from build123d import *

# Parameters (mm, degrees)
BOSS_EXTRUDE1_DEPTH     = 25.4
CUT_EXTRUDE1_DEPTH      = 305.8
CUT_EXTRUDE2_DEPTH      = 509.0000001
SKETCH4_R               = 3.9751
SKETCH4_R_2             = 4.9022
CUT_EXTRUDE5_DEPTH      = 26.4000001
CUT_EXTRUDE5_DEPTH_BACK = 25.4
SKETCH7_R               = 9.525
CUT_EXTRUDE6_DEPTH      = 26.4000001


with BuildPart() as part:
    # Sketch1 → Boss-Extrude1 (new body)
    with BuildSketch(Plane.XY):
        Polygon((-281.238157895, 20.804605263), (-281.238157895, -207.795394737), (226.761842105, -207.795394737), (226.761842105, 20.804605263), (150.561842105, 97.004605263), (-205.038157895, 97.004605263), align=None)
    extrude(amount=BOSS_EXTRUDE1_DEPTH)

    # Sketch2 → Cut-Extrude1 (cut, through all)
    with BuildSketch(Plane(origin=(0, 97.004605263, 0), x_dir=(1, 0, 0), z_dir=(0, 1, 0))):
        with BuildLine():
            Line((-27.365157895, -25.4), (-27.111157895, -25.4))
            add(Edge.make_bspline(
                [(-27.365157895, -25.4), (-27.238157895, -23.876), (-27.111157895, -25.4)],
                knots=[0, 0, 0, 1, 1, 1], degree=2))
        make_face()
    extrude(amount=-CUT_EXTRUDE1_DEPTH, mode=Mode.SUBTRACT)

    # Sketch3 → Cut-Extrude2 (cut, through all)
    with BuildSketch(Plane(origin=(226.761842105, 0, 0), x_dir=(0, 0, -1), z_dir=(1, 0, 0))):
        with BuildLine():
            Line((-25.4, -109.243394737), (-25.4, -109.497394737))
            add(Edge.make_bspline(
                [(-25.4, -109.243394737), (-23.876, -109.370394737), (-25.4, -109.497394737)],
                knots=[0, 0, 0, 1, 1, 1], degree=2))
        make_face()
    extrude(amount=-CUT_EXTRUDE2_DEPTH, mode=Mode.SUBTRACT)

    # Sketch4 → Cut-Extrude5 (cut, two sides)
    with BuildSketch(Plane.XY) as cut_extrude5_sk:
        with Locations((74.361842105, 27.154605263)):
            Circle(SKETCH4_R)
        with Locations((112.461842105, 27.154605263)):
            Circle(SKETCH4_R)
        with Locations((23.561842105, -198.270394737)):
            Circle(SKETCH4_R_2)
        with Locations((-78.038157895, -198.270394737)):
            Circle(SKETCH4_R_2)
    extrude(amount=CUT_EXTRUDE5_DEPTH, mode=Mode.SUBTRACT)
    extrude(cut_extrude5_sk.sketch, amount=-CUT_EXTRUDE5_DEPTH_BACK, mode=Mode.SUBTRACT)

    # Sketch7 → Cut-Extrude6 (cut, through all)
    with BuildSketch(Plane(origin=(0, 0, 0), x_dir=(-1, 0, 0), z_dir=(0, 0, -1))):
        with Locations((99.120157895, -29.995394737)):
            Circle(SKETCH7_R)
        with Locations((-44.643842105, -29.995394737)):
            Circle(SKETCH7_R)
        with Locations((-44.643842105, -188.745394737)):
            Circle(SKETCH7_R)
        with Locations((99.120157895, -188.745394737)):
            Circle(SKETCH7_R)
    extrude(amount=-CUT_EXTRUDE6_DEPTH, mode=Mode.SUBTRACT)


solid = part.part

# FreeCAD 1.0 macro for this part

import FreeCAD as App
import Part
import Sketcher
from FreeCAD import Vector
Q = App.Units.Quantity

doc = App.newDocument("Part")
body = doc.addObject("PartDesign::Body", "Body")

sketch1 = doc.addObject("Sketcher::SketchObject", "Sketch")
body.addObject(sketch1)
sketch1.AttachmentSupport = (doc.XY_Plane, [""])
sketch1.MapMode = "FlatFace"
sketch1.addGeometry(Part.LineSegment(Vector(-281, 21, 0), Vector(-281, -208, 0)), False)
sketch1.addGeometry(Part.LineSegment(Vector(-281, -208, 0), Vector(227, -208, 0)), False)
sketch1.addGeometry(Part.LineSegment(Vector(227, -208, 0), Vector(227, 21, 0)), False)
sketch1.addGeometry(Part.LineSegment(Vector(227, 21, 0), Vector(151, 97, 0)), False)
sketch1.addGeometry(Part.LineSegment(Vector(151, 97, 0), Vector(-205, 97, 0)), False)
sketch1.addGeometry(Part.LineSegment(Vector(-205, 97, 0), Vector(-281, 21, 0)), False)
sketch1.addConstraint(Sketcher.Constraint("Coincident", 0, 2, 1, 1))
sketch1.addConstraint(Sketcher.Constraint("Coincident", 1, 2, 2, 1))
sketch1.addConstraint(Sketcher.Constraint("Coincident", 2, 2, 3, 1))
sketch1.addConstraint(Sketcher.Constraint("Coincident", 3, 2, 4, 1))
sketch1.addConstraint(Sketcher.Constraint("Coincident", 4, 2, 5, 1))
sketch1.addConstraint(Sketcher.Constraint("Coincident", 5, 2, 0, 1))
sketch1.addConstraint(Sketcher.Constraint("Vertical", 0))
sketch1.addConstraint(Sketcher.Constraint("Horizontal", 1))
sketch1.addConstraint(Sketcher.Constraint("Vertical", 2))
sketch1.addConstraint(Sketcher.Constraint("Horizontal", 4))
sketch1.addConstraint(Sketcher.Constraint("Perpendicular", 3, 5))
sketch1.addConstraint(Sketcher.Constraint("Horizontal", 2, 2, 5, 2))
sketch1.addConstraint(Sketcher.Constraint("Equal", 3, 5))
sketch1.addConstraint(Sketcher.Constraint("DistanceX", 1, 1, 1, 2, Q("20 in")))
sketch1.addConstraint(Sketcher.Constraint("DistanceX", 4, 2, 4, 1, Q("14 in")))
sketch1.addConstraint(Sketcher.Constraint("DistanceY", 0, 2, 0, 1, Q("9 in")))
sketch1.addConstraint(Sketcher.Constraint("DistanceX", 0, 2, -1, 1, 281.238158))
sketch1.addConstraint(Sketcher.Constraint("DistanceY", 0, 2, -1, 1, 207.795395))
pad1 = doc.addObject("PartDesign::Pad", "Pad")
body.addObject(pad1)
pad1.Profile = sketch1
pad1.Length = Q("1 in")

sketch2 = doc.addObject("Sketcher::SketchObject", "Sketch001")
body.addObject(sketch2)
sketch2.AttachmentSupport = (doc.XZ_Plane, [""])
sketch2.MapMode = "FlatFace"
sketch2.AttachmentOffset = App.Placement(Vector(0, 0, -97.004605), App.Rotation())
sketch2.addGeometry(Part.LineSegment(Vector(-27.365158, 25.4, 0), Vector(-27.111158, 25.4, 0)), False)
sketch2.addGeometry(Part.BSplineCurve([Vector(-27.365158, 25.4, 0), Vector(-27.238158, 23.876, 0), Vector(-27.111158, 25.4, 0)], [3, 3], [0, 1], False, 2, [1, 1, 1], False), False)
sketch2.addConstraint(Sketcher.Constraint("Block", 1))
sketch2.addConstraint(Sketcher.Constraint("Coincident", 0, 1, 1, 1))
sketch2.addConstraint(Sketcher.Constraint("Coincident", 1, 2, 0, 2))
pocket1 = doc.addObject("PartDesign::Pocket", "Pocket")
body.addObject(pocket1)
pocket1.Profile = sketch2
pocket1.Type = "ThroughAll"
pocket1.Reversed = True

sketch3 = doc.addObject("Sketcher::SketchObject", "Sketch002")
body.addObject(sketch3)
sketch3.AttachmentSupport = (doc.YZ_Plane, [""])
sketch3.MapMode = "FlatFace"
sketch3.AttachmentOffset = App.Placement(Vector(0, 0, 226.761842), App.Rotation())
sketch3.addGeometry(Part.LineSegment(Vector(-109.243395, 25.4, 0), Vector(-109.497395, 25.4, 0)), False)
sketch3.addGeometry(Part.BSplineCurve([Vector(-109.243395, 25.4, 0), Vector(-109.370395, 23.876, 0), Vector(-109.497395, 25.4, 0)], [3, 3], [0, 1], False, 2, [1, 1, 1], False), False)
sketch3.addConstraint(Sketcher.Constraint("Block", 1))
sketch3.addConstraint(Sketcher.Constraint("Coincident", 0, 1, 1, 1))
sketch3.addConstraint(Sketcher.Constraint("Coincident", 1, 2, 0, 2))
pocket2 = doc.addObject("PartDesign::Pocket", "Pocket001")
body.addObject(pocket2)
pocket2.Profile = sketch3
pocket2.Type = "ThroughAll"

sketch4 = doc.addObject("Sketcher::SketchObject", "Sketch003")
body.addObject(sketch4)
sketch4.AttachmentSupport = (doc.XY_Plane, [""])
sketch4.MapMode = "FlatFace"
sketch4.addGeometry(Part.Circle(Vector(74.4, 27.2, 0), Vector(0, 0, 1), 4), False)
sketch4.addGeometry(Part.Circle(Vector(112.5, 27.2, 0), Vector(0, 0, 1), 4), False)
sketch4.addGeometry(Part.Circle(Vector(23.6, -198.3, 0), Vector(0, 0, 1), 4.9), False)
sketch4.addGeometry(Part.Circle(Vector(-78, -198.3, 0), Vector(0, 0, 1), 4.9), False)
sketch4.addConstraint(Sketcher.Constraint("Equal", 0, 1))
sketch4.addConstraint(Sketcher.Constraint("Equal", 2, 3))
sketch4.addConstraint(Sketcher.Constraint("Horizontal", 0, 3, 1, 3))
sketch4.addConstraint(Sketcher.Constraint("Horizontal", 2, 3, 3, 3))
sketch4.addConstraint(Sketcher.Constraint("Diameter", 0, Q("0.313 in")))
sketch4.addConstraint(Sketcher.Constraint("Diameter", 2, Q("0.386 in")))
sketch4.addConstraint(Sketcher.Constraint("DistanceX", 2, 3, 0, 3, Q("2 in")))
sketch4.addConstraint(Sketcher.Constraint("DistanceX", 3, 3, 2, 3, Q("4 in")))
sketch4.addConstraint(Sketcher.Constraint("DistanceX", 0, 3, 1, 3, Q("1.5 in")))
sketch4.addConstraint(Sketcher.Constraint("DistanceY", 2, 3, 0, 3, Q("8.875 in")))
sketch4.addConstraint(Sketcher.Constraint("DistanceX", -1, 1, 0, 3, 74.361842))
sketch4.addConstraint(Sketcher.Constraint("DistanceY", -1, 1, 0, 3, 27.154605))
pocket3 = doc.addObject("PartDesign::Pocket", "Pocket002")
body.addObject(pocket3)
pocket3.Profile = sketch4
pocket3.Type = "ThroughAll"
pocket3.Midplane = True

sketch5 = doc.addObject("Sketcher::SketchObject", "Sketch004")
body.addObject(sketch5)
sketch5.AttachmentSupport = (doc.XY_Plane, [""])
sketch5.MapMode = "FlatFace"
sketch5.addGeometry(Part.Circle(Vector(-99, -30, 0), Vector(0, 0, 1), 10), False)
sketch5.addGeometry(Part.Circle(Vector(45, -30, 0), Vector(0, 0, 1), 10), False)
sketch5.addGeometry(Part.Circle(Vector(45, -189, 0), Vector(0, 0, 1), 10), False)
sketch5.addGeometry(Part.Circle(Vector(-99, -189, 0), Vector(0, 0, 1), 10), False)
sketch5.addConstraint(Sketcher.Constraint("Equal", 0, 1))
sketch5.addConstraint(Sketcher.Constraint("Equal", 1, 2))
sketch5.addConstraint(Sketcher.Constraint("Equal", 2, 3))
sketch5.addConstraint(Sketcher.Constraint("Horizontal", 0, 3, 1, 3))
sketch5.addConstraint(Sketcher.Constraint("Horizontal", 2, 3, 3, 3))
sketch5.addConstraint(Sketcher.Constraint("Vertical", 1, 3, 2, 3))
sketch5.addConstraint(Sketcher.Constraint("Vertical", 0, 3, 3, 3))
sketch5.addConstraint(Sketcher.Constraint("Diameter", 0, Q("0.75 in")))
sketch5.addConstraint(Sketcher.Constraint("DistanceX", 0, 3, 1, 3, Q("5.66 in")))
sketch5.addConstraint(Sketcher.Constraint("DistanceY", 2, 3, 1, 3, Q("6.25 in")))
sketch5.addConstraint(Sketcher.Constraint("DistanceX", 0, 3, -1, 1, 99.120158))
sketch5.addConstraint(Sketcher.Constraint("DistanceY", 0, 3, -1, 1, 29.995395))
pocket4 = doc.addObject("PartDesign::Pocket", "Pocket003")
body.addObject(pocket4)
pocket4.Profile = sketch5
pocket4.Type = "ThroughAll"
pocket4.Reversed = True

doc.recompute()
